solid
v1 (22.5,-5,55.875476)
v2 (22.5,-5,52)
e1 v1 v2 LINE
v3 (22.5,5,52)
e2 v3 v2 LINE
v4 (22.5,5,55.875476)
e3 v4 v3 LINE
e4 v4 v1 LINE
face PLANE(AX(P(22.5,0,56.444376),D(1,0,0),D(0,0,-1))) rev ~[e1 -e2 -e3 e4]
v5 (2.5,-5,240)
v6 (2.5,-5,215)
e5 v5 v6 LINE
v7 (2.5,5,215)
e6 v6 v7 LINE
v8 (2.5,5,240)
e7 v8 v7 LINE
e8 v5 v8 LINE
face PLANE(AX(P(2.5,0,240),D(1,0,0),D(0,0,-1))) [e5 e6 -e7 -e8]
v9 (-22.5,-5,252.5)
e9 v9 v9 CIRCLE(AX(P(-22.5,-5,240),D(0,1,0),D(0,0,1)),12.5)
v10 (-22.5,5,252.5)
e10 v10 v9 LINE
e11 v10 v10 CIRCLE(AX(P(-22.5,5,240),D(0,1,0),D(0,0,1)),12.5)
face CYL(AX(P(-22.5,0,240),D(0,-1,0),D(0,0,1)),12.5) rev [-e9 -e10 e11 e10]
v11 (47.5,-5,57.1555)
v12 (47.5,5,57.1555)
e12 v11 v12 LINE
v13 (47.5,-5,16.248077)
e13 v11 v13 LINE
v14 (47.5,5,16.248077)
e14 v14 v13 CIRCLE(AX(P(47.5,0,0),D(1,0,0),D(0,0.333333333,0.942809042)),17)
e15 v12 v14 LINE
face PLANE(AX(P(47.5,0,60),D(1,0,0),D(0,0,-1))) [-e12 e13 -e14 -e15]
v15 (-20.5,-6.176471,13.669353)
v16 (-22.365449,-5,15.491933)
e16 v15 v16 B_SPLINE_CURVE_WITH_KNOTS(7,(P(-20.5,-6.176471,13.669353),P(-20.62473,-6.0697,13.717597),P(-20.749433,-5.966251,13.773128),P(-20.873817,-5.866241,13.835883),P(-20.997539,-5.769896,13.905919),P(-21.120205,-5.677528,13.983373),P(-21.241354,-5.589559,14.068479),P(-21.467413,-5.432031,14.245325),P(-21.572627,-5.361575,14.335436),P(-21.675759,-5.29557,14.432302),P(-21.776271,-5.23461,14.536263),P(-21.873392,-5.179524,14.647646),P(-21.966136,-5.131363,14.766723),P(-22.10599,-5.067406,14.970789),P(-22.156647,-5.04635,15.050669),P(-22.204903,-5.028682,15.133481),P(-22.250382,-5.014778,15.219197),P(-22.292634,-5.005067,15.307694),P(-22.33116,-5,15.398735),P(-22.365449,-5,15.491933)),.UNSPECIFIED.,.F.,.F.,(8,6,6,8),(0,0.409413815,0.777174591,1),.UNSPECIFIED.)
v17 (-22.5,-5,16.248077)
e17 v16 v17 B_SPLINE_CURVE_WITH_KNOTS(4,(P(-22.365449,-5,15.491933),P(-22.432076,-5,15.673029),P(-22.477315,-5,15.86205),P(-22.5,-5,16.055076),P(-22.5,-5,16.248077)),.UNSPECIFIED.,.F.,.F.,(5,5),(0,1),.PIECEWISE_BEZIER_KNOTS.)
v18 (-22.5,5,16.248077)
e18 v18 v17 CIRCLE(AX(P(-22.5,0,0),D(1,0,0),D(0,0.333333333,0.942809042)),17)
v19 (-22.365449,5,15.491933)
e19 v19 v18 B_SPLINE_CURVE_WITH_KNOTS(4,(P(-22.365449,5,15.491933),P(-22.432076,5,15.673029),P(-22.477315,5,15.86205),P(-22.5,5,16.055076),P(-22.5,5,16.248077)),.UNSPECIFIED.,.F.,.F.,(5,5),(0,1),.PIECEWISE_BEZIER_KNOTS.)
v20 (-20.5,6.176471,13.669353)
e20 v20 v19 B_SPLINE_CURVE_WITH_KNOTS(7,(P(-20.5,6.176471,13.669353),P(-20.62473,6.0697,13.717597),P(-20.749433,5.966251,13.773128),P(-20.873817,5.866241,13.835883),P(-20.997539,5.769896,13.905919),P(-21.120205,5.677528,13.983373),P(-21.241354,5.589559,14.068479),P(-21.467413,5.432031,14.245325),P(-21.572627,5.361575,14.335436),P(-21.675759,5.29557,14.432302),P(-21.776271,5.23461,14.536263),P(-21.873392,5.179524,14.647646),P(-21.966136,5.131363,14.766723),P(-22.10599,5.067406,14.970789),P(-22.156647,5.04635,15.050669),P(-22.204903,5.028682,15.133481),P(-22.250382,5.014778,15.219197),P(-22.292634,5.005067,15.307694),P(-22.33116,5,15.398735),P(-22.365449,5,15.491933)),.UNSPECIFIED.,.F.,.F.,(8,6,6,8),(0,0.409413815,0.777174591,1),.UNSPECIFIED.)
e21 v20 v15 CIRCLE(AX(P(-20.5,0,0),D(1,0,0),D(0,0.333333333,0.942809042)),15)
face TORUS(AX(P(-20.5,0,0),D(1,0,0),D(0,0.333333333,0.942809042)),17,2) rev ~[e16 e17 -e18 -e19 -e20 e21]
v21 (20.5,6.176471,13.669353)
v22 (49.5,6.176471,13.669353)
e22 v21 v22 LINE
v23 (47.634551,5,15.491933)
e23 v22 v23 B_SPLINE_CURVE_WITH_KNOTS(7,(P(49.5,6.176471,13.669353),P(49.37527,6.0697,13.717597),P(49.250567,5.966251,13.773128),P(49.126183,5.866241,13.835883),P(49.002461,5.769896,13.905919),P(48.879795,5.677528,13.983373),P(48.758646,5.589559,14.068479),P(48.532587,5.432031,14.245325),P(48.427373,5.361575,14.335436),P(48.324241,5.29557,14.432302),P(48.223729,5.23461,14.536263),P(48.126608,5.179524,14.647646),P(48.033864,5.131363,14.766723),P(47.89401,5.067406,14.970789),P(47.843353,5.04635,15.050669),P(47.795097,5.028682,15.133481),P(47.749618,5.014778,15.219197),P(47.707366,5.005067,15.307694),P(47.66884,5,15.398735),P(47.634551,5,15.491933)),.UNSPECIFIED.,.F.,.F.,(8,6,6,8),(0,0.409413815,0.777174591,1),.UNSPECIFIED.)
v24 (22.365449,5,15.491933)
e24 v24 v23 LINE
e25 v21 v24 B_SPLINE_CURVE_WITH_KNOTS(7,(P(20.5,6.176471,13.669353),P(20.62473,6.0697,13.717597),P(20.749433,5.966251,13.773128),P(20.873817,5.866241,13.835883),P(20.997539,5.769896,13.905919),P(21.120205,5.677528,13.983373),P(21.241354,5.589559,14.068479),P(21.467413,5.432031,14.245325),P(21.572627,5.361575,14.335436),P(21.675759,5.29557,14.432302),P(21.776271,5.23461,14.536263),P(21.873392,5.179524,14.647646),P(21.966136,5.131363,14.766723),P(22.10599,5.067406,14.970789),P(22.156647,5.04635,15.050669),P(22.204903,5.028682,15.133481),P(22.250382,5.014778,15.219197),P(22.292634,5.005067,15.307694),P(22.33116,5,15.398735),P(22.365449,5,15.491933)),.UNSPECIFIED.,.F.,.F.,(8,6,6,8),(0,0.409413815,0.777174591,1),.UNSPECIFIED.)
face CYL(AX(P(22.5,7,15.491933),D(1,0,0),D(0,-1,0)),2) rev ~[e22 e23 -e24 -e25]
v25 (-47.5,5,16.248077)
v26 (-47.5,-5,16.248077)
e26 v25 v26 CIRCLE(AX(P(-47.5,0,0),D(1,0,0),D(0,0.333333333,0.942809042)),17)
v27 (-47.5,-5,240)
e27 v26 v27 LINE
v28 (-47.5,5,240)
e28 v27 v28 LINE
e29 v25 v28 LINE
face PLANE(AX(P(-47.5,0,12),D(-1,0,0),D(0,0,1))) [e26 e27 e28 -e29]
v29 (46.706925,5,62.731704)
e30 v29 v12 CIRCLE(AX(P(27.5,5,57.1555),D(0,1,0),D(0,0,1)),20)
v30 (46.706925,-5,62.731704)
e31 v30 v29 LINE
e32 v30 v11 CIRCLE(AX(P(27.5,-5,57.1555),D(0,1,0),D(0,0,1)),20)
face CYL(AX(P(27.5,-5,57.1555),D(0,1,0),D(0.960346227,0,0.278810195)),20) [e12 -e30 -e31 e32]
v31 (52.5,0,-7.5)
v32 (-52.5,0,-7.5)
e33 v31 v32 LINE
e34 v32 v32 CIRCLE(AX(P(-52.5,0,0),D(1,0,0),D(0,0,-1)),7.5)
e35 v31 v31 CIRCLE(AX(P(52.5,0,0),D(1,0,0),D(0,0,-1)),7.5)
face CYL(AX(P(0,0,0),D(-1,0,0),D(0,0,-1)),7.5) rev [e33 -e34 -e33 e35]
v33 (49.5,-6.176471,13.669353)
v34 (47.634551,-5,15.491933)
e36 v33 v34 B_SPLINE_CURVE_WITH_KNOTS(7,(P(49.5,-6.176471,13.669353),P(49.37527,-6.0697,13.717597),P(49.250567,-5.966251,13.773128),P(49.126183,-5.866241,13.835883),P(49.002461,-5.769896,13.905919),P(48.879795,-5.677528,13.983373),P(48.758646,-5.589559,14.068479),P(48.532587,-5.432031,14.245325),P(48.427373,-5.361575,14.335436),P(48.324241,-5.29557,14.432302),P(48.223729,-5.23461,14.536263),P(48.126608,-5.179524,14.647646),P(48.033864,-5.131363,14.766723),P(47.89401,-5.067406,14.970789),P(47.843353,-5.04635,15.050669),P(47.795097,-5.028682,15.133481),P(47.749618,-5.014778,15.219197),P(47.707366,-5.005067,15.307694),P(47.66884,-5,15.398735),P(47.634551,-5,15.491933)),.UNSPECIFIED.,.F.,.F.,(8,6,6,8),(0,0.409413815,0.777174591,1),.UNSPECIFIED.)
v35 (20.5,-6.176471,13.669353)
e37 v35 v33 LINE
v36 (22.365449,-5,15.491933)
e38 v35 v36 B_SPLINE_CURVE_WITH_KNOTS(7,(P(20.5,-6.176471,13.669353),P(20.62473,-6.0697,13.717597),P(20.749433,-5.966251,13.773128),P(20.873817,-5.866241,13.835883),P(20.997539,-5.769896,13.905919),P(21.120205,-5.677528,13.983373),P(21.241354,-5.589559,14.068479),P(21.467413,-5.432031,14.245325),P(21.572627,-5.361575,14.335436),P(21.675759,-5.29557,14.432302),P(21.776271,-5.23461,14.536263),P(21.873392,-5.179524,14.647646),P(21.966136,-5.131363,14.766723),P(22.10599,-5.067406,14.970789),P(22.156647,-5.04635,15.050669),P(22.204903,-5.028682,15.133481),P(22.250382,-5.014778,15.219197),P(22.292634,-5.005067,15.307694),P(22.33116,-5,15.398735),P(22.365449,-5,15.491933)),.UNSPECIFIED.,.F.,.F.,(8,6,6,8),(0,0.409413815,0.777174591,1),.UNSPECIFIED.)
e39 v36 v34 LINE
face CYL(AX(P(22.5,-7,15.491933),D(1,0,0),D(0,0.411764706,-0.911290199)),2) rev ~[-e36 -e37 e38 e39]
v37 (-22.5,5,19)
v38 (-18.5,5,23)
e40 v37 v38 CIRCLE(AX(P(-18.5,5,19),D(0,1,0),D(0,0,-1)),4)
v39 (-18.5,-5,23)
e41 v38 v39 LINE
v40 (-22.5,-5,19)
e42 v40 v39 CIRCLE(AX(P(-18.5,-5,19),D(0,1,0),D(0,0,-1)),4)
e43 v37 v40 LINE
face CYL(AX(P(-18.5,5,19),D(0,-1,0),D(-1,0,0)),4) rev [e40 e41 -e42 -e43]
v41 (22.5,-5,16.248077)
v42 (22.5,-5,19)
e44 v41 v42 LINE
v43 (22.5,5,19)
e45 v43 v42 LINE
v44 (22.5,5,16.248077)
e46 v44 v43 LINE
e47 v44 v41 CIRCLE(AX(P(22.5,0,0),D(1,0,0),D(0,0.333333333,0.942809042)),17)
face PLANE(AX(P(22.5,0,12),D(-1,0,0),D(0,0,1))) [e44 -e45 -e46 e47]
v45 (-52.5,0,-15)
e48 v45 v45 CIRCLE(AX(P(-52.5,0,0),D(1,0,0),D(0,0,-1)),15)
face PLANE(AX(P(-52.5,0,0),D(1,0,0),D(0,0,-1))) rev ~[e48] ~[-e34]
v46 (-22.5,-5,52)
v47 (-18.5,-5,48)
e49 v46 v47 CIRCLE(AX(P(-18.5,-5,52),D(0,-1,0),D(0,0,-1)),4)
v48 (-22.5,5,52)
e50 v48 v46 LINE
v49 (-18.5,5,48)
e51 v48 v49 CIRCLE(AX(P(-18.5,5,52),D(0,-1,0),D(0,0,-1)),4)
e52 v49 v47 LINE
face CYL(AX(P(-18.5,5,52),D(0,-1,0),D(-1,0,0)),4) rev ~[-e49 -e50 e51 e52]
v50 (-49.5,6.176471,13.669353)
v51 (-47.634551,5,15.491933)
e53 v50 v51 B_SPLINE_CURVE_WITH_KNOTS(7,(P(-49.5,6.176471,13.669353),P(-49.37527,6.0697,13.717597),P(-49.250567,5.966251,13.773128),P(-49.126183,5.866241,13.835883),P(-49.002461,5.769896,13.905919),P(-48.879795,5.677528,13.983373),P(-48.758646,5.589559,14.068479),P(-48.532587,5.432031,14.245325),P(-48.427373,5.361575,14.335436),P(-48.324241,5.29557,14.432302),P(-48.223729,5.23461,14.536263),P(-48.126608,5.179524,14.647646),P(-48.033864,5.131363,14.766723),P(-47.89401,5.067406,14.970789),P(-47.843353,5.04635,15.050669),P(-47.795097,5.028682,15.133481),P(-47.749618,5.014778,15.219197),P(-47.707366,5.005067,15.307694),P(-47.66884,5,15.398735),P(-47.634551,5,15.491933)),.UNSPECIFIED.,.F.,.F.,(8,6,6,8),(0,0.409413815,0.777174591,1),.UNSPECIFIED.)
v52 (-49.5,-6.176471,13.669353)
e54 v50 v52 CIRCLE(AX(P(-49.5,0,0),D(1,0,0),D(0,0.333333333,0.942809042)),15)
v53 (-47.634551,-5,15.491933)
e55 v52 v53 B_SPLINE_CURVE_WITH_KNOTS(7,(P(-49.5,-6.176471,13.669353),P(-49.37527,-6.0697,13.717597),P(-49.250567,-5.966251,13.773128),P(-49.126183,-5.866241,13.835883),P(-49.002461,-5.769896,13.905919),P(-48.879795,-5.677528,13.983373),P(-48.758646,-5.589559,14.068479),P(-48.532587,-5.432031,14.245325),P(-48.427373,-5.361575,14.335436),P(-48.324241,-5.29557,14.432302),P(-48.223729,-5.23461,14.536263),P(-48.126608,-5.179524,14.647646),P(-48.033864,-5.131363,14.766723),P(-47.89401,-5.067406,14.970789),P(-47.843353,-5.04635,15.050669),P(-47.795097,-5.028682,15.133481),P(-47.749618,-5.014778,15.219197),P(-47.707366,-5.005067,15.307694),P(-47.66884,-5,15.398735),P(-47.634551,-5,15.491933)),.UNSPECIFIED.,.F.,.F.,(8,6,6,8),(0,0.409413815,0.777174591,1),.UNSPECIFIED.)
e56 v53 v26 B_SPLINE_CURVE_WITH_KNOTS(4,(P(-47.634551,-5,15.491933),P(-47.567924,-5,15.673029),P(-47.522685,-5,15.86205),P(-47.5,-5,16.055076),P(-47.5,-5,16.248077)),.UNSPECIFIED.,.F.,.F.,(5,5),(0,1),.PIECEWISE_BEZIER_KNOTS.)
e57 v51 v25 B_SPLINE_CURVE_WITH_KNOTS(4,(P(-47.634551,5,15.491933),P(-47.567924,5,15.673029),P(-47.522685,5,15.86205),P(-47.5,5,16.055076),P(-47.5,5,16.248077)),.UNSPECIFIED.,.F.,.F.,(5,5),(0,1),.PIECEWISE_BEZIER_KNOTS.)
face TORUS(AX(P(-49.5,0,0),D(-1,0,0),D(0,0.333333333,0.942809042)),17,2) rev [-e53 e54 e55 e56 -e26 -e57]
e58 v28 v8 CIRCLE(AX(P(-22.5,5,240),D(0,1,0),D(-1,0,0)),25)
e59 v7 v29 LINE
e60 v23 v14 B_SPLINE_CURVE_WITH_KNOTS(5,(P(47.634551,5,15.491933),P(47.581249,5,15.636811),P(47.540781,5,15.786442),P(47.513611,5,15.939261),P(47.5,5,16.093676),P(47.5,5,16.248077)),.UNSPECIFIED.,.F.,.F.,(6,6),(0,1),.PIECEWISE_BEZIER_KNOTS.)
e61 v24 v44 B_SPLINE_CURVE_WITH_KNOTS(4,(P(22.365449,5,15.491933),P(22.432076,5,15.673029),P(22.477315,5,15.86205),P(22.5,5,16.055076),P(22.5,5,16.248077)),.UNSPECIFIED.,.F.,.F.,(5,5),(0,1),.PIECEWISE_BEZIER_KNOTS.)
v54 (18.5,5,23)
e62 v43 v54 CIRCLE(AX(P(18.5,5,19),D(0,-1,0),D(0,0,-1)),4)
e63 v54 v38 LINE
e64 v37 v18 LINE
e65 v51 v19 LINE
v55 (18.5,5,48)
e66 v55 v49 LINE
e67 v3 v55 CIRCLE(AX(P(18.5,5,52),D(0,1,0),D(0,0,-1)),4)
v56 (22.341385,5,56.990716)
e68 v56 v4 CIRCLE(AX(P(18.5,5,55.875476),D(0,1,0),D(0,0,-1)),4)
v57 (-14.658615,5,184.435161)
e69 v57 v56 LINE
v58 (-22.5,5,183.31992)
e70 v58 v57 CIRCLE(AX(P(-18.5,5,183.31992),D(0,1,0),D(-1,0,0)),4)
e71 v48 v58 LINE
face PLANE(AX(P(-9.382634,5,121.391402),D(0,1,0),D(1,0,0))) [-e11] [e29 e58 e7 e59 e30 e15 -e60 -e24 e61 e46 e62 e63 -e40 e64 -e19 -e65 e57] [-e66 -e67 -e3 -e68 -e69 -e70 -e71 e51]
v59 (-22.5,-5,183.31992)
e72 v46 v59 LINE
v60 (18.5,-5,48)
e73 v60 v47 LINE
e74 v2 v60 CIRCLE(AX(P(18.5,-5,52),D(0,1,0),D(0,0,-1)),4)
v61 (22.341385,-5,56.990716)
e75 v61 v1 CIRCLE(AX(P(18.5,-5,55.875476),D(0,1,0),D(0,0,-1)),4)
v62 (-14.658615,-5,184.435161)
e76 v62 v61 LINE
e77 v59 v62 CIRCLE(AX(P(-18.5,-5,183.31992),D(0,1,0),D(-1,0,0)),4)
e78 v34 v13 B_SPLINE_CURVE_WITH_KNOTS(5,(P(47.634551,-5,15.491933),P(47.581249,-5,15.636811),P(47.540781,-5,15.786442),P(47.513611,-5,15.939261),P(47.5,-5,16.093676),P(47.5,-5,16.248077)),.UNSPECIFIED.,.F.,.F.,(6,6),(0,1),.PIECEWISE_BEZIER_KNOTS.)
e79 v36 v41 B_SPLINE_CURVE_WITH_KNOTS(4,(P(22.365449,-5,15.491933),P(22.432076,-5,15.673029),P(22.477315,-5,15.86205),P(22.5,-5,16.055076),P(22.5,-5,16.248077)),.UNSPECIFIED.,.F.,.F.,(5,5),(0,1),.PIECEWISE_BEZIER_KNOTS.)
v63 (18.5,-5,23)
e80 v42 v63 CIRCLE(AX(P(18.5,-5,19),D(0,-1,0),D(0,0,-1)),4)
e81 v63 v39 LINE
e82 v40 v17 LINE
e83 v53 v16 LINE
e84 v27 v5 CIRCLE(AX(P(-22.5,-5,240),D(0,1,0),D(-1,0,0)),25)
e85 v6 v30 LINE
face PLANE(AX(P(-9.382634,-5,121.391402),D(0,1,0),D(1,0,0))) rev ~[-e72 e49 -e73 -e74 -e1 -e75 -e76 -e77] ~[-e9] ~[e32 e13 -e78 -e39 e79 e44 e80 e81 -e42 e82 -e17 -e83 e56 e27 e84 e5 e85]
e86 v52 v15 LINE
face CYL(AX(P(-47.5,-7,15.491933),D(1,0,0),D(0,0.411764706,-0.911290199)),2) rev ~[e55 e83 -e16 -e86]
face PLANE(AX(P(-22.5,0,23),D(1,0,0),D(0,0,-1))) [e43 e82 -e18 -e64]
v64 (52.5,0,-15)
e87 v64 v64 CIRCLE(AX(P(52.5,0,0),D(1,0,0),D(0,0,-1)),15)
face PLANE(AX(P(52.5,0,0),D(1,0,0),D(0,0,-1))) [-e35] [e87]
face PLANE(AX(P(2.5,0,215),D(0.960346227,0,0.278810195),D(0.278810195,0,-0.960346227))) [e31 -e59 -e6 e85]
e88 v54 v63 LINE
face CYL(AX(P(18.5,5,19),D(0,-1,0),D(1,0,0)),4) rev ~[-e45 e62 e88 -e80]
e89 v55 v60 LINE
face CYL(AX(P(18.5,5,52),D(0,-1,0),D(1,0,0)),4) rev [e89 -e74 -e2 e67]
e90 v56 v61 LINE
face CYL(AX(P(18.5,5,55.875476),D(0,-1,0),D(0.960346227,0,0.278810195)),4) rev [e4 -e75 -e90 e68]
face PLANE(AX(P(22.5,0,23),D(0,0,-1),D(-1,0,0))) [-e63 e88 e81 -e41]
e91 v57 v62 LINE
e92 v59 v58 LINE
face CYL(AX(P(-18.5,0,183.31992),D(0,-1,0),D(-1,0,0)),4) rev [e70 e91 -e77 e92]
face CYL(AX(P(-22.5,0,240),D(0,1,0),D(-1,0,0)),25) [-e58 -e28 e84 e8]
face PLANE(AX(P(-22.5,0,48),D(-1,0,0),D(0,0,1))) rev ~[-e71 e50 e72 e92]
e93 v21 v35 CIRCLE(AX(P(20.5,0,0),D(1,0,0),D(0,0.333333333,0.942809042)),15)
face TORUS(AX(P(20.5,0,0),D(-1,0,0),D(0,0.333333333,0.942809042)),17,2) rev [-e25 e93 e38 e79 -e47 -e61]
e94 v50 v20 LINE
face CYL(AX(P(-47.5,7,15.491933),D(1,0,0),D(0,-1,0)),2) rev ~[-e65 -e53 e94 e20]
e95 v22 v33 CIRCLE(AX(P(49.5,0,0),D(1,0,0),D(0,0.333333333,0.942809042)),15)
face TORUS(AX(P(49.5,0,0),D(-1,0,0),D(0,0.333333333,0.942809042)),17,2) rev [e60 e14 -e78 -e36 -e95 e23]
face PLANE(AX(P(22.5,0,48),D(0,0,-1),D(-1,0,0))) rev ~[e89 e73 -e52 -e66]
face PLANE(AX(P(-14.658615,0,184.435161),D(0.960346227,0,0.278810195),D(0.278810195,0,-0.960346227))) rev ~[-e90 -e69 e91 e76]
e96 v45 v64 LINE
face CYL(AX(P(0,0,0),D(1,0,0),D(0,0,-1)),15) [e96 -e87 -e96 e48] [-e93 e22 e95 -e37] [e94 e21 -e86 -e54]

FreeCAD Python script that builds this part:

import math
import FreeCAD as App
import Part
import Sketcher
Q = App.Units.Quantity


def edges_at(feature, points):
    """Names of the edges that pass closest to the given points."""
    edges = feature.Shape.Edges
    near = lambda p: min(range(len(edges)), key=lambda i: edges[i].distToShape(Part.Vertex(*p))[0])
    return sorted({f"Edge{near(p) + 1}" for p in points})

doc = App.newDocument("Part")
body = doc.addObject("PartDesign::Body", "Body")

# Sketch on YZ plane
sketch1 = body.newObject("Sketcher::SketchObject", "Sketch")
sketch1.AttachmentSupport = (doc.getObject("YZ_Plane"), [""])
sketch1.MapMode = "FlatFace"
sketch1.addGeometry(Part.Circle(App.Vector(0, 0, 0), App.Vector(0, 0, 1), 15), False)
sketch1.addGeometry(Part.Circle(App.Vector(0, 0, 0), App.Vector(0, 0, 1), 7.5), False)
sketch1.addConstraint(Sketcher.Constraint("Coincident", 0, 3, -1, 1))
sketch1.addConstraint(Sketcher.Constraint("Coincident", 1, 3, -1, 1))
sketch1.addConstraint(Sketcher.Constraint("Diameter", 0, Q("30 mm")))
sketch1.addConstraint(Sketcher.Constraint("Diameter", 1, Q("15 mm")))
pad1 = body.newObject("PartDesign::Pad", "Pad")
pad1.Profile = sketch1
pad1.Length = 105
pad1.Midplane = True

# Sketch on XZ plane
sketch2 = body.newObject("Sketcher::SketchObject", "Sketch001")
sketch2.AttachmentSupport = (doc.getObject("XZ_Plane"), [""])
sketch2.MapMode = "FlatFace"
sketch2.addGeometry(Part.LineSegment(App.Vector(-47.5, 12, 0), App.Vector(-47.5, 240, 0)), False)
sketch2.addGeometry(Part.ArcOfCircle(Part.Circle(App.Vector(-22.5, 240, 0), App.Vector(0, 0, 1), 25), math.radians(0), math.radians(180)), False)
sketch2.addGeometry(Part.LineSegment(App.Vector(2.5, 240, 0), App.Vector(2.5, 215, 0)), False)
sketch2.addGeometry(Part.LineSegment(App.Vector(2.5, 215, 0), App.Vector(47.5, 60, 0)), False)
sketch2.addGeometry(Part.LineSegment(App.Vector(47.5, 60, 0), App.Vector(47.5, 12, 0)), False)
sketch2.addGeometry(Part.LineSegment(App.Vector(47.5, 12, 0), App.Vector(22.5, 12, 0)), False)
sketch2.addGeometry(Part.LineSegment(App.Vector(22.5, 12, 0), App.Vector(22.5, 23, 0)), False)
sketch2.addGeometry(Part.LineSegment(App.Vector(22.5, 23, 0), App.Vector(-22.5, 23, 0)), False)
sketch2.addGeometry(Part.LineSegment(App.Vector(-22.5, 23, 0), App.Vector(-22.5, 12, 0)), False)
sketch2.addGeometry(Part.LineSegment(App.Vector(-22.5, 12, 0), App.Vector(-47.5, 12, 0)), False)
sketch2.addGeometry(Part.Circle(App.Vector(-22.5, 240, 0), App.Vector(0, 0, 1), 12.5), False)
sketch2.addGeometry(Part.LineSegment(App.Vector(22.5, 56.444376, 0), App.Vector(-14.658615, 184.435161, 0)), False)
sketch2.addGeometry(Part.ArcOfCircle(Part.Circle(App.Vector(-18.5, 183.31992, 0), App.Vector(0, 0, 1), 4), math.radians(16.189206), math.radians(180)), False)
sketch2.addGeometry(Part.LineSegment(App.Vector(-22.5, 183.31992, 0), App.Vector(-22.5, 48, 0)), False)
sketch2.addGeometry(Part.LineSegment(App.Vector(-22.5, 48, 0), App.Vector(22.5, 48, 0)), False)
sketch2.addGeometry(Part.LineSegment(App.Vector(22.5, 48, 0), App.Vector(22.5, 56.444376, 0)), False)
sketch2.addConstraint(Sketcher.Constraint("Tangent", 0, 2, 1, 2))
sketch2.addConstraint(Sketcher.Constraint("Tangent", 1, 1, 2, 1))
sketch2.addConstraint(Sketcher.Constraint("Coincident", 2, 2, 3, 1))
sketch2.addConstraint(Sketcher.Constraint("Coincident", 3, 2, 4, 1))
sketch2.addConstraint(Sketcher.Constraint("Coincident", 4, 2, 5, 1))
sketch2.addConstraint(Sketcher.Constraint("Coincident", 5, 2, 6, 1))
sketch2.addConstraint(Sketcher.Constraint("Coincident", 6, 2, 7, 1))
sketch2.addConstraint(Sketcher.Constraint("Coincident", 7, 2, 8, 1))
sketch2.addConstraint(Sketcher.Constraint("Coincident", 8, 2, 9, 1))
sketch2.addConstraint(Sketcher.Constraint("Coincident", 9, 2, 0, 1))
sketch2.addConstraint(Sketcher.Constraint("Tangent", 11, 2, 12, 1))
sketch2.addConstraint(Sketcher.Constraint("Tangent", 12, 2, 13, 1))
sketch2.addConstraint(Sketcher.Constraint("Coincident", 13, 2, 14, 1))
sketch2.addConstraint(Sketcher.Constraint("Coincident", 14, 2, 15, 1))
sketch2.addConstraint(Sketcher.Constraint("Coincident", 15, 2, 11, 1))
sketch2.addConstraint(Sketcher.Constraint("Vertical", 0))
sketch2.addConstraint(Sketcher.Constraint("Vertical", 2))
sketch2.addConstraint(Sketcher.Constraint("Vertical", 4))
sketch2.addConstraint(Sketcher.Constraint("Horizontal", 5))
sketch2.addConstraint(Sketcher.Constraint("Vertical", 6))
sketch2.addConstraint(Sketcher.Constraint("Horizontal", 7))
sketch2.addConstraint(Sketcher.Constraint("Vertical", 8))
sketch2.addConstraint(Sketcher.Constraint("Horizontal", 9))
sketch2.addConstraint(Sketcher.Constraint("Vertical", 13))
sketch2.addConstraint(Sketcher.Constraint("Horizontal", 14))
sketch2.addConstraint(Sketcher.Constraint("Vertical", 15))
sketch2.addConstraint(Sketcher.Constraint("Coincident", 10, 3, 1, 3))
sketch2.addConstraint(Sketcher.Constraint("Symmetric", 5, 2, 8, 2, -2))
sketch2.addConstraint(Sketcher.Constraint("Parallel", 3, 11))
sketch2.addConstraint(Sketcher.Constraint("Vertical", 10, 3, 7, 2))
sketch2.addConstraint(Sketcher.Constraint("Vertical", 8, 2, 12, 2))
sketch2.addConstraint(Sketcher.Constraint("Vertical", 6, 2, 14, 2))
sketch2.addConstraint(Sketcher.Constraint("Equal", 5, 9))
sketch2.addConstraint(Sketcher.Constraint("Equal", 9, 2))
sketch2.addConstraint(Sketcher.Constraint("Diameter", 10, Q("25 mm")))
sketch2.addConstraint(Sketcher.Constraint("Radius", 1, Q("25 mm")))
sketch2.addConstraint(Sketcher.Constraint("Radius", 12, Q("4 mm")))
sketch2.addConstraint(Sketcher.Constraint("DistanceX", 7, 2, 7, 1, Q("45 mm")))
sketch2.addConstraint(Sketcher.Constraint("DistanceY", 0, 1, 0, 2, Q("228 mm")))
sketch2.addConstraint(Sketcher.Constraint("DistanceY", 4, 2, 4, 1, Q("48 mm")))
sketch2.addConstraint(Sketcher.Constraint("DistanceY", 6, 1, 6, 2, Q("11 mm")))
sketch2.addConstraint(Sketcher.Constraint("DistanceY", -1, 1, 1, 3, Q("240 mm")))
sketch2.addConstraint(Sketcher.Constraint("DistanceY", -1, 1, 13, 2, Q("48 mm")))
sketch2.addConstraint(Sketcher.Constraint("DistanceY", 13, 2, 13, 1, Q("135.31992 mm")))
pad2 = body.newObject("PartDesign::Pad", "Pad001")
pad2.Profile = sketch2
pad2.Length = 10
pad2.Midplane = True
doc.recompute()

fillet = body.newObject("PartDesign::Fillet", "Fillet")
fillet.Base = (pad2, edges_at(pad2, [
    (22.5, 0, 23),
    (-22.5, 0, 23),
    (22.5, 0, 48),
    (-22.5, 0, 48),
    (22.5, 0, 56.444),
]))
fillet.Radius = 4
doc.recompute()

fillet2 = body.newObject("PartDesign::Fillet", "Fillet001")
fillet2.Base = (fillet, edges_at(fillet, [(47.5, 0, 60)]))
fillet2.Radius = 20
doc.recompute()

fillet3 = body.newObject("PartDesign::Fillet", "Fillet002")
fillet3.Base = (fillet2, edges_at(fillet2, [
    (-47.5, 0, 15),
    (-35, -5, 14.142),
    (-35, 5, 14.142),
    (-22.5, 0, 15),
    (22.5, 0, 15),
    (35, -5, 14.142),
    (35, 5, 14.142),
    (47.5, 0, 15),
]))
fillet3.Radius = 2

doc.recompute()
